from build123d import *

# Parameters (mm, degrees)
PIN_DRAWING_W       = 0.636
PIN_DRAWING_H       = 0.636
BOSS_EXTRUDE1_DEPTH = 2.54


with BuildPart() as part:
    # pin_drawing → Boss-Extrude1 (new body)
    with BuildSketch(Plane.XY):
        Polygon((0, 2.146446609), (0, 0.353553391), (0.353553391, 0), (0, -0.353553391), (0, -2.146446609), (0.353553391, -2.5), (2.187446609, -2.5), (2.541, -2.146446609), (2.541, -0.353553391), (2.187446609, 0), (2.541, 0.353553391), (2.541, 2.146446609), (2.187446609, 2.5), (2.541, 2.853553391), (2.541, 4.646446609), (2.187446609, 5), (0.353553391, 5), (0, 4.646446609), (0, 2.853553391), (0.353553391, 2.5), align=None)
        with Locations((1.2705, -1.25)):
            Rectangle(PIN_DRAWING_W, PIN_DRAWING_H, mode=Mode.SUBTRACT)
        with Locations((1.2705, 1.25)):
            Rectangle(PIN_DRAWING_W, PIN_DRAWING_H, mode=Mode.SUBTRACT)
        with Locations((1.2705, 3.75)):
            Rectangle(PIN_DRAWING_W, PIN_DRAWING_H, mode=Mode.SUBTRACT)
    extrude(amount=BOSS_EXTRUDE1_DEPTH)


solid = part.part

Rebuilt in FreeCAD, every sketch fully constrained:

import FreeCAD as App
import Part
import Sketcher

V = App.Vector

doc = App.newDocument("Part")
body = doc.addObject("PartDesign::Body", "Body")

sketch1 = doc.addObject("Sketcher::SketchObject", "Sketch")
body.addObject(sketch1)
sketch1.AttachmentSupport = (doc.XY_Plane, [""])
sketch1.MapMode = "FlatFace"
sketch1.addGeometry(Part.LineSegment(V(0, 2.1, 0), V(0, 0.4, 0)), False)
sketch1.addGeometry(Part.LineSegment(V(0, 0.4, 0), V(0.4, 0, 0)), False)
sketch1.addGeometry(Part.LineSegment(V(0.4, 0, 0), V(0, -0.4, 0)), False)
sketch1.addGeometry(Part.LineSegment(V(0, -0.4, 0), V(0, -2.1, 0)), False)
sketch1.addGeometry(Part.LineSegment(V(0, -2.1, 0), V(0.4, -2.5, 0)), False)
sketch1.addGeometry(Part.LineSegment(V(0.4, -2.5, 0), V(2.2, -2.5, 0)), False)
sketch1.addGeometry(Part.LineSegment(V(2.2, -2.5, 0), V(2.5, -2.1, 0)), False)
sketch1.addGeometry(Part.LineSegment(V(2.5, -2.1, 0), V(2.5, -0.4, 0)), False)
sketch1.addGeometry(Part.LineSegment(V(2.5, -0.4, 0), V(2.2, 0, 0)), False)
sketch1.addGeometry(Part.LineSegment(V(2.2, 0, 0), V(2.5, 0.4, 0)), False)
sketch1.addGeometry(Part.LineSegment(V(2.5, 0.4, 0), V(2.5, 2.1, 0)), False)
sketch1.addGeometry(Part.LineSegment(V(2.5, 2.1, 0), V(2.2, 2.5, 0)), False)
sketch1.addGeometry(Part.LineSegment(V(2.2, 2.5, 0), V(2.5, 2.9, 0)), False)
sketch1.addGeometry(Part.LineSegment(V(2.5, 2.9, 0), V(2.5, 4.6, 0)), False)
sketch1.addGeometry(Part.LineSegment(V(2.5, 4.6, 0), V(2.2, 5, 0)), False)
sketch1.addGeometry(Part.LineSegment(V(2.2, 5, 0), V(0.4, 5, 0)), False)
sketch1.addGeometry(Part.LineSegment(V(0.4, 5, 0), V(0, 4.6, 0)), False)
sketch1.addGeometry(Part.LineSegment(V(0, 4.6, 0), V(0, 2.9, 0)), False)
sketch1.addGeometry(Part.LineSegment(V(0, 2.9, 0), V(0.4, 2.5, 0)), False)
sketch1.addGeometry(Part.LineSegment(V(0.4, 2.5, 0), V(0, 2.1, 0)), False)
sketch1.addGeometry(Part.LineSegment(V(1.6, -1.6, 0), V(1, -1.6, 0)), False)
sketch1.addGeometry(Part.LineSegment(V(1, -1.6, 0), V(1, -0.9, 0)), False)
sketch1.addGeometry(Part.LineSegment(V(1, -0.9, 0), V(1.6, -0.9, 0)), False)
sketch1.addGeometry(Part.LineSegment(V(1.6, -0.9, 0), V(1.6, -1.6, 0)), False)
sketch1.addGeometry(Part.LineSegment(V(1.6, 0.9, 0), V(1, 0.9, 0)), False)
sketch1.addGeometry(Part.LineSegment(V(1, 0.9, 0), V(1, 1.6, 0)), False)
sketch1.addGeometry(Part.LineSegment(V(1, 1.6, 0), V(1.6, 1.6, 0)), False)
sketch1.addGeometry(Part.LineSegment(V(1.6, 1.6, 0), V(1.6, 0.9, 0)), False)
sketch1.addGeometry(Part.LineSegment(V(1.6, 3.4, 0), V(1, 3.4, 0)), False)
sketch1.addGeometry(Part.LineSegment(V(1, 3.4, 0), V(1, 4.1, 0)), False)
sketch1.addGeometry(Part.LineSegment(V(1, 4.1, 0), V(1.6, 4.1, 0)), False)
sketch1.addGeometry(Part.LineSegment(V(1.6, 4.1, 0), V(1.6, 3.4, 0)), False)
sketch1.addConstraint(Sketcher.Constraint("Coincident", 0, 2, 1, 1))
sketch1.addConstraint(Sketcher.Constraint("Coincident", 1, 2, 2, 1))
sketch1.addConstraint(Sketcher.Constraint("Coincident", 2, 2, 3, 1))
sketch1.addConstraint(Sketcher.Constraint("Coincident", 3, 2, 4, 1))
sketch1.addConstraint(Sketcher.Constraint("Coincident", 4, 2, 5, 1))
sketch1.addConstraint(Sketcher.Constraint("Coincident", 5, 2, 6, 1))
sketch1.addConstraint(Sketcher.Constraint("Coincident", 6, 2, 7, 1))
sketch1.addConstraint(Sketcher.Constraint("Coincident", 7, 2, 8, 1))
sketch1.addConstraint(Sketcher.Constraint("Coincident", 8, 2, 9, 1))
sketch1.addConstraint(Sketcher.Constraint("Coincident", 9, 2, 10, 1))
sketch1.addConstraint(Sketcher.Constraint("Coincident", 10, 2, 11, 1))
sketch1.addConstraint(Sketcher.Constraint("Coincident", 11, 2, 12, 1))
sketch1.addConstraint(Sketcher.Constraint("Coincident", 12, 2, 13, 1))
sketch1.addConstraint(Sketcher.Constraint("Coincident", 13, 2, 14, 1))
sketch1.addConstraint(Sketcher.Constraint("Coincident", 14, 2, 15, 1))
sketch1.addConstraint(Sketcher.Constraint("Coincident", 15, 2, 16, 1))
sketch1.addConstraint(Sketcher.Constraint("Coincident", 16, 2, 17, 1))
sketch1.addConstraint(Sketcher.Constraint("Coincident", 17, 2, 18, 1))
sketch1.addConstraint(Sketcher.Constraint("Coincident", 18, 2, 19, 1))
sketch1.addConstraint(Sketcher.Constraint("Coincident", 19, 2, 0, 1))
sketch1.addConstraint(Sketcher.Constraint("Coincident", 20, 2, 21, 1))
sketch1.addConstraint(Sketcher.Constraint("Coincident", 21, 2, 22, 1))
sketch1.addConstraint(Sketcher.Constraint("Coincident", 22, 2, 23, 1))
sketch1.addConstraint(Sketcher.Constraint("Coincident", 23, 2, 20, 1))
sketch1.addConstraint(Sketcher.Constraint("Coincident", 24, 2, 25, 1))
sketch1.addConstraint(Sketcher.Constraint("Coincident", 25, 2, 26, 1))
sketch1.addConstraint(Sketcher.Constraint("Coincident", 26, 2, 27, 1))
sketch1.addConstraint(Sketcher.Constraint("Coincident", 27, 2, 24, 1))
sketch1.addConstraint(Sketcher.Constraint("Coincident", 28, 2, 29, 1))
sketch1.addConstraint(Sketcher.Constraint("Coincident", 29, 2, 30, 1))
sketch1.addConstraint(Sketcher.Constraint("Coincident", 30, 2, 31, 1))
sketch1.addConstraint(Sketcher.Constraint("Coincident", 31, 2, 28, 1))
sketch1.addConstraint(Sketcher.Constraint("Vertical", 0))
sketch1.addConstraint(Sketcher.Constraint("Vertical", 3))
sketch1.addConstraint(Sketcher.Constraint("Horizontal", 5))
sketch1.addConstraint(Sketcher.Constraint("Vertical", 7))
sketch1.addConstraint(Sketcher.Constraint("Vertical", 10))
sketch1.addConstraint(Sketcher.Constraint("Vertical", 13))
sketch1.addConstraint(Sketcher.Constraint("Horizontal", 15))
sketch1.addConstraint(Sketcher.Constraint("Vertical", 17))
sketch1.addConstraint(Sketcher.Constraint("Horizontal", 20))
sketch1.addConstraint(Sketcher.Constraint("Vertical", 21))
sketch1.addConstraint(Sketcher.Constraint("Horizontal", 22))
sketch1.addConstraint(Sketcher.Constraint("Vertical", 23))
sketch1.addConstraint(Sketcher.Constraint("Horizontal", 24))
sketch1.addConstraint(Sketcher.Constraint("Vertical", 25))
sketch1.addConstraint(Sketcher.Constraint("Horizontal", 26))
sketch1.addConstraint(Sketcher.Constraint("Vertical", 27))
sketch1.addConstraint(Sketcher.Constraint("Horizontal", 28))
sketch1.addConstraint(Sketcher.Constraint("Vertical", 29))
sketch1.addConstraint(Sketcher.Constraint("Horizontal", 30))
sketch1.addConstraint(Sketcher.Constraint("Vertical", 31))
sketch1.addConstraint(Sketcher.Constraint("Symmetric", 0, 2, 2, 2, -1, 1))
sketch1.addConstraint(Sketcher.Constraint("Symmetric", 7, 2, 9, 2, -1))
sketch1.addConstraint(Sketcher.Constraint("Symmetric", 5, 2, 11, 2, -1))
sketch1.addConstraint(Sketcher.Constraint("Symmetric", 4, 2, 18, 2, -1))
sketch1.addConstraint(Sketcher.Constraint("Symmetric", 3, 2, 19, 2, -1))
sketch1.addConstraint(Sketcher.Constraint("Symmetric", 21, 2, 24, 2, -1))
sketch1.addConstraint(Sketcher.Constraint("Symmetric", 23, 2, 26, 2, -1))
sketch1.addConstraint(Sketcher.Constraint("PointOnObject", 1, 2, -1))
sketch1.addConstraint(Sketcher.Constraint("PointOnObject", 8, 2, -1))
sketch1.addConstraint(Sketcher.Constraint("PointOnObject", 16, 2, -2))
sketch1.addConstraint(Sketcher.Constraint("Perpendicular", 1, 2))
sketch1.addConstraint(Sketcher.Constraint("Perpendicular", 2, 4))
sketch1.addConstraint(Sketcher.Constraint("Perpendicular", 4, 6))
sketch1.addConstraint(Sketcher.Constraint("Perpendicular", 6, 8))
sketch1.addConstraint(Sketcher.Constraint("Perpendicular", 9, 11))
sketch1.addConstraint(Sketcher.Constraint("Perpendicular", 11, 12))
sketch1.addConstraint(Sketcher.Constraint("Perpendicular", 12, 14))
sketch1.addConstraint(Sketcher.Constraint("Perpendicular", 14, 16))
sketch1.addConstraint(Sketcher.Constraint("Perpendicular", 16, 18))
sketch1.addConstraint(Sketcher.Constraint("Horizontal", 3, 2, 6, 2))
sketch1.addConstraint(Sketcher.Constraint("Horizontal", 2, 2, 7, 2))
sketch1.addConstraint(Sketcher.Constraint("Horizontal", 13, 2, 16, 2))
sketch1.addConstraint(Sketcher.Constraint("Horizontal", 12, 2, 17, 2))
sketch1.addConstraint(Sketcher.Constraint("Vertical", 1, 2, 4, 2))
sketch1.addConstraint(Sketcher.Constraint("Vertical", 11, 2, 14, 2))
sketch1.addConstraint(Sketcher.Constraint("Vertical", 25, 2, 28, 2))
sketch1.addConstraint(Sketcher.Constraint("Vertical", 27, 2, 30, 2))
sketch1.addConstraint(Sketcher.Constraint("Equal", 10, 13))
sketch1.addConstraint(Sketcher.Constraint("Equal", 30, 21))
sketch1.addConstraint(Sketcher.Constraint("Equal", 27, 29))
sketch1.addConstraint(Sketcher.Constraint("DistanceY", -1, 1, 14, 2, 5.0))
sketch1.addConstraint(Sketcher.Constraint("Distance", 1, 0.5))
sketch1.addConstraint(Sketcher.Constraint("DistanceX", 20, 2, 20, 1, 0.636))
sketch1.addConstraint(Sketcher.Constraint("DistanceX", -1, 1, 6, 2, 2.541))
sketch1.addConstraint(Sketcher.Constraint("DistanceY", 20, 2, -1, 1, 1.568))
sketch1.addConstraint(Sketcher.Constraint("DistanceY", -1, 1, 28, 2, 3.432))
sketch1.addConstraint(Sketcher.Constraint("DistanceX", -1, 1, 20, 2, 0.9525))
pad1 = doc.addObject("PartDesign::Pad", "Pad")
body.addObject(pad1)
pad1.Profile = sketch1
pad1.Length = 2.54

doc.recompute()
